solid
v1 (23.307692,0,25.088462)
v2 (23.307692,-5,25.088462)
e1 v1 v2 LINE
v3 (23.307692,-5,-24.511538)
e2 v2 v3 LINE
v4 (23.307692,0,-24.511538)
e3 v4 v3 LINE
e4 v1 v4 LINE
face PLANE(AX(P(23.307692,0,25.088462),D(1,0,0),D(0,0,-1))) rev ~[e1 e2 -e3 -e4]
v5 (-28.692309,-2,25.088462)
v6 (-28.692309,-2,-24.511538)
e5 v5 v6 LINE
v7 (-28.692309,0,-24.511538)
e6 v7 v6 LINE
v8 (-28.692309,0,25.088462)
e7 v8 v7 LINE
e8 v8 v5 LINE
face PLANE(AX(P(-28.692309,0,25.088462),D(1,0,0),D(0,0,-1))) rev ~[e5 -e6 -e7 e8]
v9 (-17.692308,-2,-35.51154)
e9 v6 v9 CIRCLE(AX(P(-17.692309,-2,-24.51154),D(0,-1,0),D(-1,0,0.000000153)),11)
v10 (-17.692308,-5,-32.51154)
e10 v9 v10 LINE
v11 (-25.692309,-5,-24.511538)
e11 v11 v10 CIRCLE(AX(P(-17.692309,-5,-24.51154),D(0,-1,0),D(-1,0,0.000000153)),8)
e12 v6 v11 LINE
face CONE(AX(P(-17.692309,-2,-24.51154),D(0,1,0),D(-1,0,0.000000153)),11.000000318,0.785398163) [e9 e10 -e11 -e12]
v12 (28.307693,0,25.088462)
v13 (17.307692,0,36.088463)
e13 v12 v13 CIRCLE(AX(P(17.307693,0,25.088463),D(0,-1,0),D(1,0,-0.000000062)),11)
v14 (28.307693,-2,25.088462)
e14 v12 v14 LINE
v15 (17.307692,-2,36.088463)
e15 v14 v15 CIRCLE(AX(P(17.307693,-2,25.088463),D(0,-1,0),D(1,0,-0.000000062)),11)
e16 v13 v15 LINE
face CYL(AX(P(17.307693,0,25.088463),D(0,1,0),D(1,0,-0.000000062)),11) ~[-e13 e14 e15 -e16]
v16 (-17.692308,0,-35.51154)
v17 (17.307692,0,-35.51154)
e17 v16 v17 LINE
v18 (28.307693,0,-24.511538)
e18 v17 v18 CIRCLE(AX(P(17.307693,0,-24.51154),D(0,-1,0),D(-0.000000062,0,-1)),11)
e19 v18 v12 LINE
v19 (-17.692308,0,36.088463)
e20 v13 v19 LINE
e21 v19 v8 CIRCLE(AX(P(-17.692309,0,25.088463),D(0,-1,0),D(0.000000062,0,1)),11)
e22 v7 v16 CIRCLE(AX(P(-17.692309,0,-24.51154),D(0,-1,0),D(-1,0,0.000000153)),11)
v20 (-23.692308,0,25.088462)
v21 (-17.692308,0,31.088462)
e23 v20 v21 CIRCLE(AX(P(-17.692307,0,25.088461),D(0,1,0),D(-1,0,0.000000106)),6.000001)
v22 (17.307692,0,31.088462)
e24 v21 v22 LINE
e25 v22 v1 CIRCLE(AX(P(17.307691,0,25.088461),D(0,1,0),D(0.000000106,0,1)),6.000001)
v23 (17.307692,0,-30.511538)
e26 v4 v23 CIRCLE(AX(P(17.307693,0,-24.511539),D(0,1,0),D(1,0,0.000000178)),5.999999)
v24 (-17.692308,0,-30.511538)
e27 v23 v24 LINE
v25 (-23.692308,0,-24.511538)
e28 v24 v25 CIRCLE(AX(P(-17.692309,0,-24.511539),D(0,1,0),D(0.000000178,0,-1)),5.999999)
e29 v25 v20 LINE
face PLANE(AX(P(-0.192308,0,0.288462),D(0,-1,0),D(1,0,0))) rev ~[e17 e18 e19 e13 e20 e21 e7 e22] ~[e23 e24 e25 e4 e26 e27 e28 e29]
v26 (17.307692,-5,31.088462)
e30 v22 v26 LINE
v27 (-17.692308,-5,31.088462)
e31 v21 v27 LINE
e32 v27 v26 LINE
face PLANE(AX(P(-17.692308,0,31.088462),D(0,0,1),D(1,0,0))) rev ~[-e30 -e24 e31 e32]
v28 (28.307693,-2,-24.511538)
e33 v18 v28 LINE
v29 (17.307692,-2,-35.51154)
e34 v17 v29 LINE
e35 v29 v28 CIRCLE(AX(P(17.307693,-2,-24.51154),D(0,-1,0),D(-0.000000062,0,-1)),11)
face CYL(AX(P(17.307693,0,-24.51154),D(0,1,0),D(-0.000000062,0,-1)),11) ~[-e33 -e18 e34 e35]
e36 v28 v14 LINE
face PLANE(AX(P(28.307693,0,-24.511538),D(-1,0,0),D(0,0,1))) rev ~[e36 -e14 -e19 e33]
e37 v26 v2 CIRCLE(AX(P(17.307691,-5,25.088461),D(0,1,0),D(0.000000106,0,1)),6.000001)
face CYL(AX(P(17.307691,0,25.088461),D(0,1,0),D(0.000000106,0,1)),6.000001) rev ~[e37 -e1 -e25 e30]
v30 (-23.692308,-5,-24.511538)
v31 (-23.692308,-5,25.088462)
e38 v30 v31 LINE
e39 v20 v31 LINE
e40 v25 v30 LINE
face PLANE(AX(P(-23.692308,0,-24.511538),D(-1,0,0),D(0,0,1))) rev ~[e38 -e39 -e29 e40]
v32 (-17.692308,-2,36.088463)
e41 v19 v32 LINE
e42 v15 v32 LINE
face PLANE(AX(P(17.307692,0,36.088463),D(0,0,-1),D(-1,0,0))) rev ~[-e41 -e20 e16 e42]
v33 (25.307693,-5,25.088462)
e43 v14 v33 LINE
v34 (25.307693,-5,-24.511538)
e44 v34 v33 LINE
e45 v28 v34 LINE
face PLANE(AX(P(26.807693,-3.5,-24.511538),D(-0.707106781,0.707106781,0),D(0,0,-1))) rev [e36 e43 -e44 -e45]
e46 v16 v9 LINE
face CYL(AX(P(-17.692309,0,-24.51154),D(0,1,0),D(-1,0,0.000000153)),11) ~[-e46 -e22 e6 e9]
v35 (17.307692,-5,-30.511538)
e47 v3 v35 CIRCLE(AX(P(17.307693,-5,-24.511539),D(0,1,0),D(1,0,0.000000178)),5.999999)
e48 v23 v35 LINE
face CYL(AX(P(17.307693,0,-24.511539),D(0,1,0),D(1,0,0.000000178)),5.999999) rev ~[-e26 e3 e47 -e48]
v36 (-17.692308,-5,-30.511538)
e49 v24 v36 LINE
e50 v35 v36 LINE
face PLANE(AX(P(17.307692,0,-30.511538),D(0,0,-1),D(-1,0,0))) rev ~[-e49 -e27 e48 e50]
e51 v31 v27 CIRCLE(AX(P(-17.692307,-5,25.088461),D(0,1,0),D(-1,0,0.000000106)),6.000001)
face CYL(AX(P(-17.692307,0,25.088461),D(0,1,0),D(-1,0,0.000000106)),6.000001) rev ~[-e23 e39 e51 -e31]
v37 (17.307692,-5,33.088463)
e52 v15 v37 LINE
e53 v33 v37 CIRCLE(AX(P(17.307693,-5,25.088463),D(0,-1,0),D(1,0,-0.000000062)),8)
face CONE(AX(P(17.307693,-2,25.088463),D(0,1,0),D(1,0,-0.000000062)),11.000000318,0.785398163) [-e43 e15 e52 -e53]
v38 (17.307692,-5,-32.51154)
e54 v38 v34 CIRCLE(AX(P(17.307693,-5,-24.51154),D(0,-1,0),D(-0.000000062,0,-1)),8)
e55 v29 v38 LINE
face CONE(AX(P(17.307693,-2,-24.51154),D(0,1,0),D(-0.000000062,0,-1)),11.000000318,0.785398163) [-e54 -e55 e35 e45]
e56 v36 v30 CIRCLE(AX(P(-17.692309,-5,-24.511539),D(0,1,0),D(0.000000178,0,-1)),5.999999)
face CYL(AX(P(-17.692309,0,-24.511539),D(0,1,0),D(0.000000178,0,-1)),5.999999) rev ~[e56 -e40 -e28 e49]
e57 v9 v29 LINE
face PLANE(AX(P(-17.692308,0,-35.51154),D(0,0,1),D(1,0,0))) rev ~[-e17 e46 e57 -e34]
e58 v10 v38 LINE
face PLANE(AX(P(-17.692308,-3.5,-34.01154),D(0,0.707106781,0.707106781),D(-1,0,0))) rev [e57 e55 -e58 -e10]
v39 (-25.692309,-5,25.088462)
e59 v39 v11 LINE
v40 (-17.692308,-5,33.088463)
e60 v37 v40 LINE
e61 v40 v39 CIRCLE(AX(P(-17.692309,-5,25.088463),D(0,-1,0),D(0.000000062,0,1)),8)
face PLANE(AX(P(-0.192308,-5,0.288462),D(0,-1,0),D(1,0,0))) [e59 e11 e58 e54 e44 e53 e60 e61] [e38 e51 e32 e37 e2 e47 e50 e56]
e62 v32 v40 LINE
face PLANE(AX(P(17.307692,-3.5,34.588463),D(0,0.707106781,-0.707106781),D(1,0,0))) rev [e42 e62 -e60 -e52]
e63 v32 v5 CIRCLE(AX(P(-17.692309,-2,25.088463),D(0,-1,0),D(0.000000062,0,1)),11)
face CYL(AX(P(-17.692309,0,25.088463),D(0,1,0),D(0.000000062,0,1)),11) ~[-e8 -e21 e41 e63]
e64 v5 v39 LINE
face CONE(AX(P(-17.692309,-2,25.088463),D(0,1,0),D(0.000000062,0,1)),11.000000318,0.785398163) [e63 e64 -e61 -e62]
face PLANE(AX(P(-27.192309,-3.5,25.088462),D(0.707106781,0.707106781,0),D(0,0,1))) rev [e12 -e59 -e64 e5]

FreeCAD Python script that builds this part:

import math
import FreeCAD as App
import Part
import Sketcher


def edges_at(feature, points):
    """Names of the edges that pass closest to the given points."""
    edges = feature.Shape.Edges
    near = lambda p: min(range(len(edges)), key=lambda i: edges[i].distToShape(Part.Vertex(*p))[0])
    return sorted({f"Edge{near(p) + 1}" for p in points})

doc = App.newDocument("Part")
params = doc.addObject("Spreadsheet::Sheet", "Params")
for row, (alias, value) in enumerate([
    ("sketch1_radius", "11 mm"),
    ("sketch1_radius2", "6.000001 mm"),
    ("sketch1_width", "35 mm"),
    ("sketch1_height", "49.6 mm"),
    ("pad1_length", "5 mm"),
    ("chamfer_size", "3 mm"),
], start=1):
    params.set(f"A{row}", alias)
    params.set(f"B{row}", "=" + value)
    params.setAlias(f"B{row}", alias)

body = doc.addObject("PartDesign::Body", "Body")

# Sketch on XZ plane
sketch1 = body.newObject("Sketcher::SketchObject", "Sketch")
sketch1.AttachmentSupport = (doc.getObject("XZ_Plane"), [""])
sketch1.MapMode = "FlatFace"
sketch1.addGeometry([
    Part.LineSegment(App.Vector(17.307692, 36.088463, 0), App.Vector(-17.692308, 36.088463, 0)),  # 0
    Part.ArcOfCircle(Part.Circle(App.Vector(-17.692309, 25.088463, 0), App.Vector(0, 0, 1), 11), math.radians(89.999996), math.radians(180.000004)),  # 1
    Part.LineSegment(App.Vector(-28.692309, 25.088462, 0), App.Vector(-28.692309, -24.511538, 0)),  # 2
    Part.ArcOfCircle(Part.Circle(App.Vector(-17.692309, -24.51154, 0), App.Vector(0, 0, 1), 11), math.radians(179.999991), math.radians(270.000004)),  # 3
    Part.LineSegment(App.Vector(-17.692308, -35.51154, 0), App.Vector(17.307692, -35.51154, 0)),  # 4
    Part.ArcOfCircle(Part.Circle(App.Vector(17.307693, -24.51154, 0), App.Vector(0, 0, 1), 11), math.radians(-90.000004), math.radians(0.000009)),  # 5
    Part.LineSegment(App.Vector(28.307693, -24.511538, 0), App.Vector(28.307693, 25.088462, 0)),  # 6
    Part.ArcOfCircle(Part.Circle(App.Vector(17.307693, 25.088463, 0), App.Vector(0, 0, 1), 11), math.radians(-0.000004), math.radians(90.000004)),  # 7
    Part.LineSegment(App.Vector(-23.692308, -24.511538, 0), App.Vector(-23.692308, 25.088462, 0)),  # 8
    Part.ArcOfCircle(Part.Circle(App.Vector(-17.692307, 25.088461, 0), App.Vector(0, 0, 1), 6.000001), math.radians(90.000006), math.radians(179.999994)),  # 9
    Part.LineSegment(App.Vector(-17.692308, 31.088462, 0), App.Vector(17.307692, 31.088462, 0)),  # 10
    Part.ArcOfCircle(Part.Circle(App.Vector(17.307691, 25.088461, 0), App.Vector(0, 0, 1), 6.000001), math.radians(0.000006), math.radians(89.999994)),  # 11
    Part.LineSegment(App.Vector(23.307692, 25.088462, 0), App.Vector(23.307692, -24.511538, 0)),  # 12
    Part.ArcOfCircle(Part.Circle(App.Vector(17.307693, -24.511539, 0), App.Vector(0, 0, 1), 5.999999), math.radians(-90.00001), math.radians(0.00001)),  # 13
    Part.LineSegment(App.Vector(17.307692, -30.511538, 0), App.Vector(-17.692308, -30.511538, 0)),  # 14
    Part.ArcOfCircle(Part.Circle(App.Vector(-17.692309, -24.511539, 0), App.Vector(0, 0, 1), 5.999999), math.radians(179.99999), math.radians(270.00001)),  # 15
], False)
sketch1.addConstraint([
    Sketcher.Constraint("Tangent", 0, 2, 1, 1),
    Sketcher.Constraint("Tangent", 1, 2, 2, 1),
    Sketcher.Constraint("Tangent", 2, 2, 3, 1),
    Sketcher.Constraint("Tangent", 3, 2, 4, 1),
    Sketcher.Constraint("Tangent", 4, 2, 5, 1),
    Sketcher.Constraint("Tangent", 5, 2, 6, 1),
    Sketcher.Constraint("Tangent", 6, 2, 7, 1),
    Sketcher.Constraint("Tangent", 7, 2, 0, 1),
    Sketcher.Constraint("Tangent", 8, 2, 9, 2),
    Sketcher.Constraint("Tangent", 9, 1, 10, 1),
    Sketcher.Constraint("Tangent", 10, 2, 11, 2),
    Sketcher.Constraint("Tangent", 11, 1, 12, 1),
    Sketcher.Constraint("Tangent", 12, 2, 13, 2),
    Sketcher.Constraint("Tangent", 13, 1, 14, 1),
    Sketcher.Constraint("Tangent", 14, 2, 15, 2),
    Sketcher.Constraint("Tangent", 15, 1, 8, 1),
    Sketcher.Constraint("Horizontal", 0),
    Sketcher.Constraint("Vertical", 2),
    Sketcher.Constraint("Horizontal", 4),
    Sketcher.Constraint("Vertical", 6),
    Sketcher.Constraint("Vertical", 8),
    Sketcher.Constraint("Horizontal", 10),
    Sketcher.Constraint("Vertical", 12),
    Sketcher.Constraint("Horizontal", 14),
    Sketcher.Constraint("Coincident", 9, 3, 1, 3),
    Sketcher.Constraint("Coincident", 11, 3, 7, 3),
    Sketcher.Constraint("Coincident", 13, 3, 5, 3),
    Sketcher.Constraint("Equal", 1, 3),
    Sketcher.Constraint("Equal", 3, 5),
    Sketcher.Constraint("Equal", 5, 7),
    Sketcher.Constraint("Equal", 13, 15),
    Sketcher.Constraint("Radius", 1, 11.0),
    Sketcher.Constraint("Radius", 9, 6.000001),
    Sketcher.Constraint("DistanceX", 0, 2, 0, 1, 35.0),
    Sketcher.Constraint("DistanceY", 2, 2, 2, 1, 49.6),
    Sketcher.Constraint("DistanceX", 1, 3, -1, 1, 17.692309),
    Sketcher.Constraint("DistanceY", 3, 3, -1, 1, 24.51154),
])
sketch1.setExpression("Constraints[31]", "Params.sketch1_radius")
sketch1.setExpression("Constraints[32]", "Params.sketch1_radius2")
sketch1.setExpression("Constraints[33]", "Params.sketch1_width")
sketch1.setExpression("Constraints[34]", "Params.sketch1_height")
pad1 = body.newObject("PartDesign::Pad", "Pad")
pad1.Profile = sketch1
pad1.setExpression("Length", "Params.pad1_length")
doc.recompute()

chamfer = body.newObject("PartDesign::Chamfer", "Chamfer")
chamfer.Base = (pad1, edges_at(pad1, [(28.308, -5, 0.288)]))
chamfer.setExpression("Size", "Params.chamfer_size")

doc.recompute()
